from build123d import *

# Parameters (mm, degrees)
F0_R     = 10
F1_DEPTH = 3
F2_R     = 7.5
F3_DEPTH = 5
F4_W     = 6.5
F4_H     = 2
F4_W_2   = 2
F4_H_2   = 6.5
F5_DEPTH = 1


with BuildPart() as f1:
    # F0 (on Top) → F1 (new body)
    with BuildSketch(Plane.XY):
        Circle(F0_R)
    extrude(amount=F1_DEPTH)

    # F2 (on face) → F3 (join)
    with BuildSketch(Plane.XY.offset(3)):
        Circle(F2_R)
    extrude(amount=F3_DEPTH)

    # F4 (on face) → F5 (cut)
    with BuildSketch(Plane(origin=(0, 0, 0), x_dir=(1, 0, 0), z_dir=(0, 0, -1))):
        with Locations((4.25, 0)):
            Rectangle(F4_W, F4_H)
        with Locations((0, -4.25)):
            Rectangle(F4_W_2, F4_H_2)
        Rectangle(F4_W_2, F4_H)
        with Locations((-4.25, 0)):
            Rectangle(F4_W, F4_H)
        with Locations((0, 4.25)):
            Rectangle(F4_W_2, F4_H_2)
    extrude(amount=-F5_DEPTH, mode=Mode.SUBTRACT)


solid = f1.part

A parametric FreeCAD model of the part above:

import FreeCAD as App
import Part
import Sketcher

V = App.Vector


def add_polygon(sketch, points):
    """Adds a closed chain of lines whose ends are joined by coincident constraints."""
    first, n = sketch.GeometryCount, len(points)
    for a, b in zip(points, points[1:] + points[:1]):
        sketch.addGeometry(Part.LineSegment(App.Vector(*a, 0), App.Vector(*b, 0)), False)
    for i in range(n):
        sketch.addConstraint(Sketcher.Constraint("Coincident", first + i, 2, first + (i + 1) % n, 1))

doc = App.newDocument("Part")
params = doc.addObject("Spreadsheet::Sheet", "Params")
for row, (alias, value) in enumerate([
    ("sketch1_diameter", "20 mm"),
    ("pad1_length", "3 mm"),
    ("sketch2_diameter", "15 mm"),
    ("pad2_length", "5 mm"),
    ("sketch3_width", "2 mm"),
    ("sketch3_width2", "6.5 mm"),
    ("pocket1_length", "1 mm"),
], start=1):
    params.set(f"A{row}", alias)
    params.set(f"B{row}", "=" + value)
    params.setAlias(f"B{row}", alias)

body = doc.addObject("PartDesign::Body", "Body")

sketch1 = body.newObject("Sketcher::SketchObject", "Sketch")
sketch1.AttachmentSupport = (doc.getObject("XY_Plane"), [""])
sketch1.MapMode = "FlatFace"
sketch1.addGeometry(Part.Circle(V(0, 0, 0), V(0, 0, 1), 10), False)
sketch1.addConstraint(Sketcher.Constraint("Coincident", 0, 3, -1, 1))
sketch1.addConstraint(Sketcher.Constraint("Diameter", 0, 20.0))
sketch1.setExpression("Constraints[1]", "Params.sketch1_diameter")
pad1 = body.newObject("PartDesign::Pad", "Pad")
pad1.Profile = sketch1
pad1.setExpression("Length", "Params.pad1_length")

sketch2 = body.newObject("Sketcher::SketchObject", "Sketch001")
sketch2.AttachmentSupport = (doc.getObject("XY_Plane"), [""])
sketch2.MapMode = "FlatFace"
sketch2.AttachmentOffset = App.Placement(V(0, 0, 3), App.Rotation())
sketch2.addGeometry(Part.Circle(V(0, 0, 0), V(0, 0, 1), 7.5), False)
sketch2.addConstraint(Sketcher.Constraint("Coincident", 0, 3, -1, 1))
sketch2.addConstraint(Sketcher.Constraint("Diameter", 0, 15.0))
sketch2.setExpression("Constraints[1]", "Params.sketch2_diameter")
pad2 = body.newObject("PartDesign::Pad", "Pad001")
pad2.Profile = sketch2
pad2.setExpression("Length", "Params.pad2_length")

sketch3 = body.newObject("Sketcher::SketchObject", "Sketch002")
sketch3.AttachmentSupport = (doc.getObject("XY_Plane"), [""])
sketch3.MapMode = "FlatFace"
add_polygon(sketch3, [(1, 1), (7.5, 1), (7.5, -1), (1, -1), (1, -7.5), (-1, -7.5), (-1, -1), (-7.5, -1), (-7.5, 1), (-1, 1), (-1, 7.5), (1, 7.5)])
sketch3.addConstraint(Sketcher.Constraint("Horizontal", 0))
sketch3.addConstraint(Sketcher.Constraint("Vertical", 1))
sketch3.addConstraint(Sketcher.Constraint("Horizontal", 2))
sketch3.addConstraint(Sketcher.Constraint("Vertical", 3))
sketch3.addConstraint(Sketcher.Constraint("Horizontal", 4))
sketch3.addConstraint(Sketcher.Constraint("Vertical", 5))
sketch3.addConstraint(Sketcher.Constraint("Horizontal", 6))
sketch3.addConstraint(Sketcher.Constraint("Vertical", 7))
sketch3.addConstraint(Sketcher.Constraint("Horizontal", 8))
sketch3.addConstraint(Sketcher.Constraint("Vertical", 9))
sketch3.addConstraint(Sketcher.Constraint("Horizontal", 10))
sketch3.addConstraint(Sketcher.Constraint("Vertical", 11))
sketch3.addConstraint(Sketcher.Constraint("Symmetric", 0, 2, 6, 2, -1, 1))
sketch3.addConstraint(Sketcher.Constraint("Symmetric", 2, 2, 8, 2, -1, 1))
sketch3.addConstraint(Sketcher.Constraint("Symmetric", 4, 2, 10, 2, -1, 1))
sketch3.addConstraint(Sketcher.Constraint("Symmetric", 2, 2, 5, 2, -2))
sketch3.addConstraint(Sketcher.Constraint("Equal", 10, 1))
sketch3.addConstraint(Sketcher.Constraint("Equal", 8, 3))
sketch3.addConstraint(Sketcher.Constraint("DistanceX", 4, 2, 4, 1, 2.0))
sketch3.addConstraint(Sketcher.Constraint("DistanceX", 0, 1, 0, 2, 6.5))
sketch3.setExpression("Constraints[30]", "Params.sketch3_width")
sketch3.setExpression("Constraints[31]", "Params.sketch3_width2")
pocket1 = body.newObject("PartDesign::Pocket", "Pocket")
pocket1.Profile = sketch3
pocket1.setExpression("Length", "Params.pocket1_length")
pocket1.Reversed = True

doc.recompute()
